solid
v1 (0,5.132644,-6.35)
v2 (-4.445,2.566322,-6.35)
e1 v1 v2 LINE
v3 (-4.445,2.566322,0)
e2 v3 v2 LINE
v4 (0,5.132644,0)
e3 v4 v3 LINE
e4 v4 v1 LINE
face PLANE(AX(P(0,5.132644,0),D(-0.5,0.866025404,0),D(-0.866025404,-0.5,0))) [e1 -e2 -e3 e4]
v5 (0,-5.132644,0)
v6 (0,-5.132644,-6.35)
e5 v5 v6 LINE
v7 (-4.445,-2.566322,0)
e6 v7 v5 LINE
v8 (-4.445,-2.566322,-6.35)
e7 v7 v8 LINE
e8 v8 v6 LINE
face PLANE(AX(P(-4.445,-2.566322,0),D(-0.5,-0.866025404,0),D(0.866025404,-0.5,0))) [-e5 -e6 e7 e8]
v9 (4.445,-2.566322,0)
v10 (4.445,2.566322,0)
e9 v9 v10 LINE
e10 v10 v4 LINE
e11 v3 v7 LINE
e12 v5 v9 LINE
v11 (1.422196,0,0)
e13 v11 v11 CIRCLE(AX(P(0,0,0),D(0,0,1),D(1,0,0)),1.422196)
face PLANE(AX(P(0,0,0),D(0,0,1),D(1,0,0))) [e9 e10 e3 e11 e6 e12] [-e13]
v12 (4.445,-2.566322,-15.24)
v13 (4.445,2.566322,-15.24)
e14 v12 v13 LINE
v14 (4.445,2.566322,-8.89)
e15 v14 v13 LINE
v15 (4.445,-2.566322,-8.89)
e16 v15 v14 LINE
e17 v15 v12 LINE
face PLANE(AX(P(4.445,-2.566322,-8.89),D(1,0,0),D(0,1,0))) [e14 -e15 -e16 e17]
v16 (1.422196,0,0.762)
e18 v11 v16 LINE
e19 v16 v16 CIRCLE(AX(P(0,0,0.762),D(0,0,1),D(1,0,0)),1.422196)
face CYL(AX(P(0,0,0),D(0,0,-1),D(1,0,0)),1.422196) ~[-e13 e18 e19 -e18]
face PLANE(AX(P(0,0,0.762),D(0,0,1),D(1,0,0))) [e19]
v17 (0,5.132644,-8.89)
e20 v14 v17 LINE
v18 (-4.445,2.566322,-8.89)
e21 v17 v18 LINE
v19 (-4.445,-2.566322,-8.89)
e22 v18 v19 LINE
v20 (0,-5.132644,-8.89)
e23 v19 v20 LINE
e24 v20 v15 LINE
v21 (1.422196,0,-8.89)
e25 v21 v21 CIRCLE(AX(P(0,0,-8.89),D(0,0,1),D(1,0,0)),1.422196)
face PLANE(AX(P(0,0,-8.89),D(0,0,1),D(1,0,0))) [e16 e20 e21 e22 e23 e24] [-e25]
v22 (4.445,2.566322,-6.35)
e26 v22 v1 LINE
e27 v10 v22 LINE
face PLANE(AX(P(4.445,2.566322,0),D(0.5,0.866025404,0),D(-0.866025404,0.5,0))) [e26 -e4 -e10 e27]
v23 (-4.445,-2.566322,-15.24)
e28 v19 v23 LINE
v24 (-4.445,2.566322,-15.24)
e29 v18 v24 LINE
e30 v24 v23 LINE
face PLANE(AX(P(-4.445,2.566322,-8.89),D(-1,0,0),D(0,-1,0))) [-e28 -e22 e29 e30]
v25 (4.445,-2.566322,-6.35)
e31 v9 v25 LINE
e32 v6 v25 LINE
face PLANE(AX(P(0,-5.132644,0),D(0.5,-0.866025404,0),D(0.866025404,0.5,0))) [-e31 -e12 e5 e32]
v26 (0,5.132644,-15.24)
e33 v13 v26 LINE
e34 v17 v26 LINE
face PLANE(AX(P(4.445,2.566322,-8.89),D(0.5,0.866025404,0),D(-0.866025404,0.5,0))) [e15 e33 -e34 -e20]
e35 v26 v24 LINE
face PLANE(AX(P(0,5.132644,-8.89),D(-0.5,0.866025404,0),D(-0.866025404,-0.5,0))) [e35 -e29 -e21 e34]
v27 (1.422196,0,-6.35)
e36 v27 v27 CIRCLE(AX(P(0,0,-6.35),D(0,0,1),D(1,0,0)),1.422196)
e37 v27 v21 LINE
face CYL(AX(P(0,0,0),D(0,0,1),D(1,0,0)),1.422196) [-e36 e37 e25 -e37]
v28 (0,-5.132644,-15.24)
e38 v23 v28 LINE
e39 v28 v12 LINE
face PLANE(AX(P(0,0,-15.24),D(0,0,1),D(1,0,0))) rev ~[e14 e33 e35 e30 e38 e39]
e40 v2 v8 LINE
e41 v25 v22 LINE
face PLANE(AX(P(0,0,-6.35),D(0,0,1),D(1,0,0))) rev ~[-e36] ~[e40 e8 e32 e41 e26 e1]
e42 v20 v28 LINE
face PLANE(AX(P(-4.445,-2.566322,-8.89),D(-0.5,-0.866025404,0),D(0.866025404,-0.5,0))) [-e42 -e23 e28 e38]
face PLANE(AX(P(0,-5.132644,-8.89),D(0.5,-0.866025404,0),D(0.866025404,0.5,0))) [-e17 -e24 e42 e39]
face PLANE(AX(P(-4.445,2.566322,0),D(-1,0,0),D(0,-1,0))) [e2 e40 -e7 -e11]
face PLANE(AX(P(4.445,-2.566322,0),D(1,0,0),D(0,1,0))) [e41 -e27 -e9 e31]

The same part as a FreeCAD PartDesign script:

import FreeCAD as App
import Part
import Sketcher
from FreeCAD import Vector
Q = App.Units.Quantity


def add_polygon(sketch, points):
    """Adds a closed chain of lines whose ends are joined by coincident constraints."""
    first, n = sketch.GeometryCount, len(points)
    for a, b in zip(points, points[1:] + points[:1]):
        sketch.addGeometry(Part.LineSegment(App.Vector(*a, 0), App.Vector(*b, 0)), False)
    for i in range(n):
        sketch.addConstraint(Sketcher.Constraint("Coincident", first + i, 2, first + (i + 1) % n, 1))

doc = App.newDocument("Part")
body = doc.addObject("PartDesign::Body", "Body")

# Sketch on XY plane
sketch1 = doc.addObject("Sketcher::SketchObject", "Sketch")
body.addObject(sketch1)
sketch1.AttachmentSupport = (doc.XY_Plane, [""])
sketch1.MapMode = "FlatFace"
add_polygon(sketch1, [(4.4, -2.6), (4.4, 2.6), (0, 5.1), (-4.4, 2.6), (-4.4, -2.6), (0, -5.1)])  # lines 0-5
sketch1.addGeometry(Part.Circle(Vector(0, 0, 0), Vector(0, 0, 1), 1.4), False)  # 6
sketch1.addConstraint([
    Sketcher.Constraint("Vertical", 0),
    Sketcher.Constraint("Vertical", 3),
    Sketcher.Constraint("Coincident", 6, 3, -1, 1),
    Sketcher.Constraint("Symmetric", 0, 2, 3, 2, -1, 1),
    Sketcher.Constraint("Symmetric", 1, 2, 4, 2, -1, 1),
    Sketcher.Constraint("PointOnObject", 1, 2, -2),
    Sketcher.Constraint("Parallel", 2, 5),
    Sketcher.Constraint("Horizontal", 0, 2, 2, 2),
    Sketcher.Constraint("Angle", 1, Q("150 deg")),
    Sketcher.Constraint("DistanceX", 2, 2, 0, 2, Q("0.35 in")),
    Sketcher.Constraint("Diameter", 6, 2.844393),
    Sketcher.Constraint("DistanceY", 0, 1, 0, 2, 5.132644),
])
pad1 = doc.addObject("PartDesign::Pad", "Pad")
body.addObject(pad1)
pad1.Profile = sketch1
pad1.Length = Q("0.25 in")
pad1.Reversed = True

# Sketch on XY plane
sketch2 = doc.addObject("Sketcher::SketchObject", "Sketch001")
body.addObject(sketch2)
sketch2.AttachmentSupport = (doc.XY_Plane, [""])
sketch2.MapMode = "FlatFace"
sketch2.addGeometry(Part.Circle(Vector(0, 0, 0), Vector(0, 0, 1), 1.4), False)
sketch2.addConstraint([
    Sketcher.Constraint("Coincident", 0, 3, -1, 1),
    Sketcher.Constraint("Diameter", 0, 2.844393),
])
pad2 = doc.addObject("PartDesign::Pad", "Pad001")
body.addObject(pad2)
pad2.Profile = sketch2
pad2.Type = "TwoLengths"
pad2.Length = Q("0.03 in")
pad2.Length2 = Q("0.6 in")

# Sketch on XY plane
sketch3 = doc.addObject("Sketcher::SketchObject", "Sketch002")
body.addObject(sketch3)
sketch3.AttachmentSupport = (doc.XY_Plane, [""])
sketch3.MapMode = "FlatFace"
sketch3.AttachmentOffset = App.Placement(Vector(0, 0, -0.35 * 25.4), App.Rotation())
add_polygon(sketch3, [(4.4, -2.6), (4.4, 2.6), (0, 5.1), (-4.4, 2.6), (-4.4, -2.6), (0, -5.1)])  # lines 0-5
sketch3.addGeometry(Part.Circle(Vector(0, 0, 0), Vector(0, 0, 1), 1.4), False)  # 6
sketch3.addConstraint([
    Sketcher.Constraint("Vertical", 0),
    Sketcher.Constraint("Vertical", 3),
    Sketcher.Constraint("Coincident", 6, 3, -1, 1),
    Sketcher.Constraint("Symmetric", 0, 2, 3, 2, -1, 1),
    Sketcher.Constraint("Symmetric", 1, 2, 4, 2, -1, 1),
    Sketcher.Constraint("PointOnObject", 1, 2, -2),
    Sketcher.Constraint("Parallel", 2, 5),
    Sketcher.Constraint("Horizontal", 0, 2, 2, 2),
    Sketcher.Constraint("Angle", 1, Q("150 deg")),
    Sketcher.Constraint("DistanceX", 2, 2, 0, 2, Q("0.35 in")),
    Sketcher.Constraint("Diameter", 6, 2.844393),
    Sketcher.Constraint("DistanceY", 0, 1, 0, 2, 5.132644),
])
pad3 = doc.addObject("PartDesign::Pad", "Pad002")
body.addObject(pad3)
pad3.Profile = sketch3
pad3.Length = Q("0.25 in")
pad3.Reversed = True

doc.recompute()
